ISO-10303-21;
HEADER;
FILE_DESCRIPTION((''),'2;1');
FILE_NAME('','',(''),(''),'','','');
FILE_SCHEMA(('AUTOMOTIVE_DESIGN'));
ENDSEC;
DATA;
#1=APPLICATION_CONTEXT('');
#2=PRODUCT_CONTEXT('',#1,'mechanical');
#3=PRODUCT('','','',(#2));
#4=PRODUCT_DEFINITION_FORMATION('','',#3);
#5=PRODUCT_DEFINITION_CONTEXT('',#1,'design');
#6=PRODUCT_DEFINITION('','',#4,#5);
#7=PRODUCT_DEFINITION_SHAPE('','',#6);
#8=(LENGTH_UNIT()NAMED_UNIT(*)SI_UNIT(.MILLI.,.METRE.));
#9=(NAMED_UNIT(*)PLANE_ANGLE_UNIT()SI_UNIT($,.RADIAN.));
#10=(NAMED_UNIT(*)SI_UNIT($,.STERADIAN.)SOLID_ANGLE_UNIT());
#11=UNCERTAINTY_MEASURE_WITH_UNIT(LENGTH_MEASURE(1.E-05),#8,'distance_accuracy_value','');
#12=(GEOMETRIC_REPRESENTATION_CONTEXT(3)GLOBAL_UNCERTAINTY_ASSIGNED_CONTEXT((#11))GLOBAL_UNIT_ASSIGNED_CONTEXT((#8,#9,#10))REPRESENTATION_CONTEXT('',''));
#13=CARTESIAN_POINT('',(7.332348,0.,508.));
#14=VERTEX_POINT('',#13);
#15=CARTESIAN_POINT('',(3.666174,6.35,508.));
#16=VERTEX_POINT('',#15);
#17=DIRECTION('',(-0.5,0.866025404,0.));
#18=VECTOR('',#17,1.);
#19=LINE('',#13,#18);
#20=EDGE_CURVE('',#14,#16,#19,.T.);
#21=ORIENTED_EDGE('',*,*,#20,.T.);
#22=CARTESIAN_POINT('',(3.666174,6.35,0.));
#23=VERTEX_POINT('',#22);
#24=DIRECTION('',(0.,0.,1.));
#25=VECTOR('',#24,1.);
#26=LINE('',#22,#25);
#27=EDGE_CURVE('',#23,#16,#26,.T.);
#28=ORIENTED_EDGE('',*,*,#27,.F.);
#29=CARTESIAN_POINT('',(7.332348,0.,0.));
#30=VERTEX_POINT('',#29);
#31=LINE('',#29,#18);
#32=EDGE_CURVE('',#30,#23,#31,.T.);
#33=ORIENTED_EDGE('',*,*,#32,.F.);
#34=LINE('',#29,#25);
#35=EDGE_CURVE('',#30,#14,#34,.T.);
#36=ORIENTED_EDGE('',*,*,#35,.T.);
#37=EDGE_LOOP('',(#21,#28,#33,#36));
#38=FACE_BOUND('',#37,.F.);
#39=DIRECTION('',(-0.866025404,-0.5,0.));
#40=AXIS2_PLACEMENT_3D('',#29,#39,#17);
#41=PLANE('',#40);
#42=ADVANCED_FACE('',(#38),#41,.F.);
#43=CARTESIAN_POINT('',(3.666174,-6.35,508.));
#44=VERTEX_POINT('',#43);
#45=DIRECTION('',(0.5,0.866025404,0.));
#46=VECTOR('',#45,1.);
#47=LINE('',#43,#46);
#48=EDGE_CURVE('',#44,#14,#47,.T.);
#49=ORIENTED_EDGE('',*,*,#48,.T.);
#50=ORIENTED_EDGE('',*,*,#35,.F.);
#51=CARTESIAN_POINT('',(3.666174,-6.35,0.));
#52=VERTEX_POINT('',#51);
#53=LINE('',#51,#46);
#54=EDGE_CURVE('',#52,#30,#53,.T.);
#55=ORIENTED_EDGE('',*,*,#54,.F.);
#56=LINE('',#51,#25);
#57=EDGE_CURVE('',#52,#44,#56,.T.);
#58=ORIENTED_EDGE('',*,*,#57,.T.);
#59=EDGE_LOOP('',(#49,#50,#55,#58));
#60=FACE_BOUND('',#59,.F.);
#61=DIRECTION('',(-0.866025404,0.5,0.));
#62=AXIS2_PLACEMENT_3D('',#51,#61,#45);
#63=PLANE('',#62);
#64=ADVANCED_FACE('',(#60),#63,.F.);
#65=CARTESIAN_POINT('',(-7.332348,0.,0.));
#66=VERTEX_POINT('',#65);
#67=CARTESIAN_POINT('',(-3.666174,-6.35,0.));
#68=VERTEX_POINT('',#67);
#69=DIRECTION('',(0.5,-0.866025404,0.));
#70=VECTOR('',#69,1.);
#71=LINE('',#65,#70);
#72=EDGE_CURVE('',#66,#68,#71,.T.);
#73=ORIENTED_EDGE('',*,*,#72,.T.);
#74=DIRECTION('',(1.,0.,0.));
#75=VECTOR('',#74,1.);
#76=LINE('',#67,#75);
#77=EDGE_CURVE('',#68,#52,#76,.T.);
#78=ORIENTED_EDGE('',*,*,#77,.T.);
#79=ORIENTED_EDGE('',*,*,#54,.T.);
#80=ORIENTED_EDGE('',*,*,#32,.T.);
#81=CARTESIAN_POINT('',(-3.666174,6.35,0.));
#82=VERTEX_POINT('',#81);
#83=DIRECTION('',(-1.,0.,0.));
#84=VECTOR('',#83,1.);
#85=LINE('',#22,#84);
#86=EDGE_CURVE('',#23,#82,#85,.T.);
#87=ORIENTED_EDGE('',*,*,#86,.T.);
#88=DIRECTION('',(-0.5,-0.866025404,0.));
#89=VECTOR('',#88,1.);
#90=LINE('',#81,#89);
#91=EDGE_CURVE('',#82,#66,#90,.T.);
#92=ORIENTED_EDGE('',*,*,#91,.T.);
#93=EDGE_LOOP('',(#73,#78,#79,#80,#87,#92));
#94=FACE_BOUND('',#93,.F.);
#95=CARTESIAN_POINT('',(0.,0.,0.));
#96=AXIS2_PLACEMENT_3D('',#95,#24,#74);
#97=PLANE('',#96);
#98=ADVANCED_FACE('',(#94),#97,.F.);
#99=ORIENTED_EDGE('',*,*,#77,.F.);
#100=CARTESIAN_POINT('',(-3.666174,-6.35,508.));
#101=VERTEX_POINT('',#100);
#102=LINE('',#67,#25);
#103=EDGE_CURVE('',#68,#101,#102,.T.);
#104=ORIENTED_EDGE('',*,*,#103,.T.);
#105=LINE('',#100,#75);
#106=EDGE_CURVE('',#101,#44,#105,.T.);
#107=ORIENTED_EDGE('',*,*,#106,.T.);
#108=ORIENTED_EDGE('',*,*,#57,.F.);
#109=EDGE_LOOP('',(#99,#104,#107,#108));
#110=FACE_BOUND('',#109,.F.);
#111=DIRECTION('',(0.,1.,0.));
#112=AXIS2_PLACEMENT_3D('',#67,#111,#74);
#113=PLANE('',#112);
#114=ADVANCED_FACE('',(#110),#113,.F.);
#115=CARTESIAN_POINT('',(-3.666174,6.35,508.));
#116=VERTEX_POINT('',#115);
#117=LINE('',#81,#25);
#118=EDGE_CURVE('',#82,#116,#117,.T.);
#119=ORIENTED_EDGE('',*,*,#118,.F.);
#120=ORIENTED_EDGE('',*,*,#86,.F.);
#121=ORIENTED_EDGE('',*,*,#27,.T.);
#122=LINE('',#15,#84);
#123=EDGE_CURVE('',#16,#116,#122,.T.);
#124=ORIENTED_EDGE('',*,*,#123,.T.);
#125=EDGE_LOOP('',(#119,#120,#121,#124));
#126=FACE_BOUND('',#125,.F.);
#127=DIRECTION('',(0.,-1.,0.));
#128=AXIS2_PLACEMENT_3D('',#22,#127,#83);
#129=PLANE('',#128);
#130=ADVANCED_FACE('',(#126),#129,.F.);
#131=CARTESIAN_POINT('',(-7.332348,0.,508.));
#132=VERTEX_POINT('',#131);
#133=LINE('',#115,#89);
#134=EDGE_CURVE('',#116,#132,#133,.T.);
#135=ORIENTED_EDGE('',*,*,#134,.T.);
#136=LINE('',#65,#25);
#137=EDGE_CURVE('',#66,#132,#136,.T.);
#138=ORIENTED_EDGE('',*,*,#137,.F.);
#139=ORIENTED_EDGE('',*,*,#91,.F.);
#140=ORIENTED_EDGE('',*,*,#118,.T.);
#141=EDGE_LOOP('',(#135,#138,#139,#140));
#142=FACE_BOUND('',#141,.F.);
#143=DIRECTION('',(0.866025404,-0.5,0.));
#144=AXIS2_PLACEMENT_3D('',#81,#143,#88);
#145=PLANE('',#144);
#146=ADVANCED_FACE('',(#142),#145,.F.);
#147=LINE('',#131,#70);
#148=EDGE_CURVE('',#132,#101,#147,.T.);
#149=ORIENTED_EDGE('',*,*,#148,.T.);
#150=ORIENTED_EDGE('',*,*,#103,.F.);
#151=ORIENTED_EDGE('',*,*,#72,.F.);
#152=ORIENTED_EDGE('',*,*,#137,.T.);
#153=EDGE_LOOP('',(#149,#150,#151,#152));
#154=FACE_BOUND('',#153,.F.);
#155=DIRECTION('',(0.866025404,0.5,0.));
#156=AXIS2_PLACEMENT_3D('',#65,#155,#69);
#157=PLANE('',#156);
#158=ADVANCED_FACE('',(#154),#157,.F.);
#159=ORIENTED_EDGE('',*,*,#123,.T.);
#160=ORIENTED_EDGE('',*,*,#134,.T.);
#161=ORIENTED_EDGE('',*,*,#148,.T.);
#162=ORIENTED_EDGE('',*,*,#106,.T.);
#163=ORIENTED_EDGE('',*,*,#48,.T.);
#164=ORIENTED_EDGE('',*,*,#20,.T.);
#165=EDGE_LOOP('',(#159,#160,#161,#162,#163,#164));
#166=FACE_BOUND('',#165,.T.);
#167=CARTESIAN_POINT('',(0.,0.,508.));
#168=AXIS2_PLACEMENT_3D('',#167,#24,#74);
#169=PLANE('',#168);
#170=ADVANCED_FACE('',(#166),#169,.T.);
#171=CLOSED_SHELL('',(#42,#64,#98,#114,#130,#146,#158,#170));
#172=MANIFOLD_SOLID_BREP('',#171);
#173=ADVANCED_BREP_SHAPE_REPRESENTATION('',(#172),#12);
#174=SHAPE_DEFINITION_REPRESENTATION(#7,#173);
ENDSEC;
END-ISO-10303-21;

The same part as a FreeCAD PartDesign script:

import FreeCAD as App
import Part
import Sketcher
from FreeCAD import Vector
Q = App.Units.Quantity

doc = App.newDocument("Part")
body = doc.addObject("PartDesign::Body", "Body")

# Sketch on XY plane
sketch1 = body.newObject("Sketcher::SketchObject", "Sketch")
sketch1.AttachmentSupport = (doc.getObject("XY_Plane"), [""])
sketch1.MapMode = "FlatFace"
sketch1.addGeometry([
    Part.LineSegment(Vector(7.332348, 0, 0), Vector(3.666174, 6.35, 0)),  # 0
    Part.LineSegment(Vector(3.666174, 6.35, 0), Vector(-3.666174, 6.35, 0)),  # 1
    Part.LineSegment(Vector(-3.666174, 6.35, 0), Vector(-7.332348, 0, 0)),  # 2
    Part.LineSegment(Vector(-7.332348, 0, 0), Vector(-3.666174, -6.35, 0)),  # 3
    Part.LineSegment(Vector(-3.666174, -6.35, 0), Vector(3.666174, -6.35, 0)),  # 4
    Part.LineSegment(Vector(3.666174, -6.35, 0), Vector(7.332348, 0, 0)),  # 5
], False)
sketch1.addConstraint([
    Sketcher.Constraint("Coincident", 0, 2, 1, 1),
    Sketcher.Constraint("Coincident", 1, 2, 2, 1),
    Sketcher.Constraint("Coincident", 2, 2, 3, 1),
    Sketcher.Constraint("Coincident", 3, 2, 4, 1),
    Sketcher.Constraint("Coincident", 4, 2, 5, 1),
    Sketcher.Constraint("Coincident", 5, 2, 0, 1),
    Sketcher.Constraint("Horizontal", 1),
    Sketcher.Constraint("Horizontal", 4),
    Sketcher.Constraint("Symmetric", 0, 2, 3, 2, -1, 1),
    Sketcher.Constraint("Symmetric", 2, 2, 5, 2, -1, 1),
    Sketcher.Constraint("PointOnObject", 2, 2, -1),
    Sketcher.Constraint("Parallel", 2, 5),
    Sketcher.Constraint("Vertical", 1, 2, 3, 2),
    Sketcher.Constraint("Angle", 0, Q("120 deg")),
    Sketcher.Constraint("DistanceY", 3, 2, 1, 2, Q("0.5 in")),
    Sketcher.Constraint("DistanceX", 1, 2, 1, 1, 7.332348),
])
pad1 = body.newObject("PartDesign::Pad", "Pad")
pad1.Profile = sketch1
pad1.Length = Q("20 in")

doc.recompute()
